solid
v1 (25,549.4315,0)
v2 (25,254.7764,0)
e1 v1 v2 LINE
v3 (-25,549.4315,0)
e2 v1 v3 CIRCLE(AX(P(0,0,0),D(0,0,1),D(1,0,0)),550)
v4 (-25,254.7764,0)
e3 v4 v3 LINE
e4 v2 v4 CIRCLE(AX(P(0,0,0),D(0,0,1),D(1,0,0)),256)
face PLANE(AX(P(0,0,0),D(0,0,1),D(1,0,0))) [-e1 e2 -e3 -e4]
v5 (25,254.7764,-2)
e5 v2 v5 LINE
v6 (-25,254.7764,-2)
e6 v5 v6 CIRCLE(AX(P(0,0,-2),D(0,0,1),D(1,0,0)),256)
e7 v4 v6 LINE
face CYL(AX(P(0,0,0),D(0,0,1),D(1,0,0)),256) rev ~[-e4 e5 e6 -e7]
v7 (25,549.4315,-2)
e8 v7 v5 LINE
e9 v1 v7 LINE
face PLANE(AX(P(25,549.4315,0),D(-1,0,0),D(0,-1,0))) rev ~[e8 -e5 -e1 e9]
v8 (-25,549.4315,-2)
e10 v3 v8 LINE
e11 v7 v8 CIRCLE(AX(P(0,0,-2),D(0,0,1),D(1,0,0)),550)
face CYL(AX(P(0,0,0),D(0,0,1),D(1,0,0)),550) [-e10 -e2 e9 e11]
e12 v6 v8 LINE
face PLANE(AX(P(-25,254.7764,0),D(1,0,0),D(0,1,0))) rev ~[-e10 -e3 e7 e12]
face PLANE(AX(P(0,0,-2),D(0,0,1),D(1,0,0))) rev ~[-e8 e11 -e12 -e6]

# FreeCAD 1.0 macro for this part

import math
import FreeCAD as App
import Part
import Sketcher
Q = App.Units.Quantity

doc = App.newDocument("Part")
body = doc.addObject("PartDesign::Body", "Body")

# Sketch on XY plane
sketch1 = doc.addObject("Sketcher::SketchObject", "Sketch")
body.addObject(sketch1)
sketch1.AttachmentSupport = (doc.XY_Plane, [""])
sketch1.MapMode = "FlatFace"
sketch1.addGeometry([
    Part.ArcOfCircle(Part.Circle(App.Vector(0, 0, 0), App.Vector(0, 0, 1), 256), math.radians(84.4), math.radians(95.6)),
    Part.LineSegment(App.Vector(25, 255, 0), App.Vector(25, 549, 0)),
    Part.ArcOfCircle(Part.Circle(App.Vector(0, 0, 0), App.Vector(0, 0, 1), 550), math.radians(87.39), math.radians(92.61)),
    Part.LineSegment(App.Vector(-25, 549, 0), App.Vector(-25, 255, 0)),
], False)
sketch1.addConstraint([
    Sketcher.Constraint("Coincident", 0, 1, 1, 1),
    Sketcher.Constraint("Coincident", 1, 2, 2, 1),
    Sketcher.Constraint("Coincident", 2, 2, 3, 1),
    Sketcher.Constraint("Coincident", 3, 2, 0, 2),
    Sketcher.Constraint("Vertical", 1),
    Sketcher.Constraint("Vertical", 3),
    Sketcher.Constraint("Coincident", 0, 3, -1, 1),
    Sketcher.Constraint("Coincident", 2, 3, -1, 1),
    Sketcher.Constraint("Horizontal", 0, 1, 3, 2),
    Sketcher.Constraint("Radius", 0, Q("256 mm")),
    Sketcher.Constraint("Radius", 2, Q("550 mm")),
    Sketcher.Constraint("DistanceX", 3, 2, 0, 1, Q("50 mm")),
])
pad1 = doc.addObject("PartDesign::Pad", "Pad")
body.addObject(pad1)
pad1.Profile = sketch1
pad1.Length = 2
pad1.Reversed = True

doc.recompute()
